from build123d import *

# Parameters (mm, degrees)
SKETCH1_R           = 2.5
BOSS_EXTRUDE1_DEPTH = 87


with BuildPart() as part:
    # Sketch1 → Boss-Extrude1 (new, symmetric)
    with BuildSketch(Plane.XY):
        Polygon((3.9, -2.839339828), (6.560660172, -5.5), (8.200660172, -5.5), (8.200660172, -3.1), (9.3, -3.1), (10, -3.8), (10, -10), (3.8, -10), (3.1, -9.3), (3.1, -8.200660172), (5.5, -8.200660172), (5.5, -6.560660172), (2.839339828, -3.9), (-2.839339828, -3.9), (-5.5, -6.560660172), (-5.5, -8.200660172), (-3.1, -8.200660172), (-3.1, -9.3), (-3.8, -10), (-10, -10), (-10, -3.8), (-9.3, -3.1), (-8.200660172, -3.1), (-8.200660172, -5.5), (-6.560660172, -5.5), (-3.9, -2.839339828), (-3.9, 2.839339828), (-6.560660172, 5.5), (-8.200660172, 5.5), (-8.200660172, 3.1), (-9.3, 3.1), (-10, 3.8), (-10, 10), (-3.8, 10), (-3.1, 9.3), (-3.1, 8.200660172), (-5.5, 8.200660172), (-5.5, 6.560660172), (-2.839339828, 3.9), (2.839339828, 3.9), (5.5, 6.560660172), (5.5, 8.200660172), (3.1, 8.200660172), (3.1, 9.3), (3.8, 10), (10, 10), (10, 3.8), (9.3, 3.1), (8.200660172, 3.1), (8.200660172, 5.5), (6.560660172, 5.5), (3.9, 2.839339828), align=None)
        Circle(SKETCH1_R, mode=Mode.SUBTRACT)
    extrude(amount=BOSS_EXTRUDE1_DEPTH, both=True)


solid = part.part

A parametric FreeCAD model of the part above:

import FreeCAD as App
import Part
import Sketcher
from FreeCAD import Vector

doc = App.newDocument("Part")
body = doc.addObject("PartDesign::Body", "Body")

sketch1 = body.newObject("Sketcher::SketchObject", "Sketch")
sketch1.AttachmentSupport = (doc.getObject("XY_Plane"), [""])
sketch1.MapMode = "FlatFace"
sketch1.addGeometry(Part.LineSegment(Vector(6.56066, -5.5, 0), Vector(3.9, -2.83934, 0)), False)
sketch1.addGeometry(Part.LineSegment(Vector(3.9, -2.83934, 0), Vector(3.9, 2.83934, 0)), False)
sketch1.addGeometry(Part.LineSegment(Vector(3.9, 2.83934, 0), Vector(6.56066, 5.5, 0)), False)
sketch1.addGeometry(Part.LineSegment(Vector(6.56066, 5.5, 0), Vector(8.20066, 5.5, 0)), False)
sketch1.addGeometry(Part.LineSegment(Vector(8.20066, 5.5, 0), Vector(8.20066, 3.1, 0)), False)
sketch1.addGeometry(Part.LineSegment(Vector(8.20066, 3.1, 0), Vector(9.3, 3.1, 0)), False)
sketch1.addGeometry(Part.LineSegment(Vector(9.3, 3.1, 0), Vector(10, 3.8, 0)), False)
sketch1.addGeometry(Part.LineSegment(Vector(10, 3.8, 0), Vector(10, 10, 0)), False)
sketch1.addGeometry(Part.LineSegment(Vector(10, 10, 0), Vector(3.8, 10, 0)), False)
sketch1.addGeometry(Part.LineSegment(Vector(3.8, 10, 0), Vector(3.1, 9.3, 0)), False)
sketch1.addGeometry(Part.LineSegment(Vector(3.1, 9.3, 0), Vector(3.1, 8.20066, 0)), False)
sketch1.addGeometry(Part.LineSegment(Vector(3.1, 8.20066, 0), Vector(5.5, 8.20066, 0)), False)
sketch1.addGeometry(Part.LineSegment(Vector(5.5, 8.20066, 0), Vector(5.5, 6.56066, 0)), False)
sketch1.addGeometry(Part.LineSegment(Vector(5.5, 6.56066, 0), Vector(2.83934, 3.9, 0)), False)
sketch1.addGeometry(Part.LineSegment(Vector(2.83934, 3.9, 0), Vector(-2.83934, 3.9, 0)), False)
sketch1.addGeometry(Part.LineSegment(Vector(-2.83934, 3.9, 0), Vector(-5.5, 6.56066, 0)), False)
sketch1.addGeometry(Part.LineSegment(Vector(-5.5, 6.56066, 0), Vector(-5.5, 8.20066, 0)), False)
sketch1.addGeometry(Part.LineSegment(Vector(-5.5, 8.20066, 0), Vector(-3.1, 8.20066, 0)), False)
sketch1.addGeometry(Part.LineSegment(Vector(-3.1, 8.20066, 0), Vector(-3.1, 9.3, 0)), False)
sketch1.addGeometry(Part.LineSegment(Vector(-3.1, 9.3, 0), Vector(-3.8, 10, 0)), False)
sketch1.addGeometry(Part.LineSegment(Vector(-3.8, 10, 0), Vector(-10, 10, 0)), False)
sketch1.addGeometry(Part.LineSegment(Vector(-10, 10, 0), Vector(-10, 3.8, 0)), False)
sketch1.addGeometry(Part.LineSegment(Vector(-10, 3.8, 0), Vector(-9.3, 3.1, 0)), False)
sketch1.addGeometry(Part.LineSegment(Vector(-9.3, 3.1, 0), Vector(-8.20066, 3.1, 0)), False)
sketch1.addGeometry(Part.LineSegment(Vector(-8.20066, 3.1, 0), Vector(-8.20066, 5.5, 0)), False)
sketch1.addGeometry(Part.LineSegment(Vector(-8.20066, 5.5, 0), Vector(-6.56066, 5.5, 0)), False)
sketch1.addGeometry(Part.LineSegment(Vector(-6.56066, 5.5, 0), Vector(-3.9, 2.83934, 0)), False)
sketch1.addGeometry(Part.LineSegment(Vector(-3.9, 2.83934, 0), Vector(-3.9, -2.83934, 0)), False)
sketch1.addGeometry(Part.LineSegment(Vector(-3.9, -2.83934, 0), Vector(-6.56066, -5.5, 0)), False)
sketch1.addGeometry(Part.LineSegment(Vector(-6.56066, -5.5, 0), Vector(-8.20066, -5.5, 0)), False)
sketch1.addGeometry(Part.LineSegment(Vector(-8.20066, -5.5, 0), Vector(-8.20066, -3.1, 0)), False)
sketch1.addGeometry(Part.LineSegment(Vector(-8.20066, -3.1, 0), Vector(-9.3, -3.1, 0)), False)
sketch1.addGeometry(Part.LineSegment(Vector(-9.3, -3.1, 0), Vector(-10, -3.8, 0)), False)
sketch1.addGeometry(Part.LineSegment(Vector(-10, -3.8, 0), Vector(-10, -10, 0)), False)
sketch1.addGeometry(Part.LineSegment(Vector(-10, -10, 0), Vector(-3.8, -10, 0)), False)
sketch1.addGeometry(Part.LineSegment(Vector(-3.8, -10, 0), Vector(-3.1, -9.3, 0)), False)
sketch1.addGeometry(Part.LineSegment(Vector(-3.1, -9.3, 0), Vector(-3.1, -8.20066, 0)), False)
sketch1.addGeometry(Part.LineSegment(Vector(-3.1, -8.20066, 0), Vector(-5.5, -8.20066, 0)), False)
sketch1.addGeometry(Part.LineSegment(Vector(-5.5, -8.20066, 0), Vector(-5.5, -6.56066, 0)), False)
sketch1.addGeometry(Part.LineSegment(Vector(-5.5, -6.56066, 0), Vector(-2.83934, -3.9, 0)), False)
sketch1.addGeometry(Part.LineSegment(Vector(-2.83934, -3.9, 0), Vector(2.83934, -3.9, 0)), False)
sketch1.addGeometry(Part.LineSegment(Vector(2.83934, -3.9, 0), Vector(5.5, -6.56066, 0)), False)
sketch1.addGeometry(Part.LineSegment(Vector(5.5, -6.56066, 0), Vector(5.5, -8.20066, 0)), False)
sketch1.addGeometry(Part.LineSegment(Vector(5.5, -8.20066, 0), Vector(3.1, -8.20066, 0)), False)
sketch1.addGeometry(Part.LineSegment(Vector(3.1, -8.20066, 0), Vector(3.1, -9.3, 0)), False)
sketch1.addGeometry(Part.LineSegment(Vector(3.1, -9.3, 0), Vector(3.8, -10, 0)), False)
sketch1.addGeometry(Part.LineSegment(Vector(3.8, -10, 0), Vector(10, -10, 0)), False)
sketch1.addGeometry(Part.LineSegment(Vector(10, -10, 0), Vector(10, -3.8, 0)), False)
sketch1.addGeometry(Part.LineSegment(Vector(10, -3.8, 0), Vector(9.3, -3.1, 0)), False)
sketch1.addGeometry(Part.LineSegment(Vector(9.3, -3.1, 0), Vector(8.20066, -3.1, 0)), False)
sketch1.addGeometry(Part.LineSegment(Vector(8.20066, -3.1, 0), Vector(8.20066, -5.5, 0)), False)
sketch1.addGeometry(Part.LineSegment(Vector(8.20066, -5.5, 0), Vector(6.56066, -5.5, 0)), False)
sketch1.addGeometry(Part.Circle(Vector(0, 0, 0), Vector(0, 0, 1), 2.5), False)
sketch1.addConstraint(Sketcher.Constraint("Coincident", 0, 2, 1, 1))
sketch1.addConstraint(Sketcher.Constraint("Coincident", 1, 2, 2, 1))
sketch1.addConstraint(Sketcher.Constraint("Coincident", 2, 2, 3, 1))
sketch1.addConstraint(Sketcher.Constraint("Coincident", 3, 2, 4, 1))
sketch1.addConstraint(Sketcher.Constraint("Coincident", 4, 2, 5, 1))
sketch1.addConstraint(Sketcher.Constraint("Coincident", 5, 2, 6, 1))
sketch1.addConstraint(Sketcher.Constraint("Coincident", 6, 2, 7, 1))
sketch1.addConstraint(Sketcher.Constraint("Coincident", 7, 2, 8, 1))
sketch1.addConstraint(Sketcher.Constraint("Coincident", 8, 2, 9, 1))
sketch1.addConstraint(Sketcher.Constraint("Coincident", 9, 2, 10, 1))
sketch1.addConstraint(Sketcher.Constraint("Coincident", 10, 2, 11, 1))
sketch1.addConstraint(Sketcher.Constraint("Coincident", 11, 2, 12, 1))
sketch1.addConstraint(Sketcher.Constraint("Coincident", 12, 2, 13, 1))
sketch1.addConstraint(Sketcher.Constraint("Coincident", 13, 2, 14, 1))
sketch1.addConstraint(Sketcher.Constraint("Coincident", 14, 2, 15, 1))
sketch1.addConstraint(Sketcher.Constraint("Coincident", 15, 2, 16, 1))
sketch1.addConstraint(Sketcher.Constraint("Coincident", 16, 2, 17, 1))
sketch1.addConstraint(Sketcher.Constraint("Coincident", 17, 2, 18, 1))
sketch1.addConstraint(Sketcher.Constraint("Coincident", 18, 2, 19, 1))
sketch1.addConstraint(Sketcher.Constraint("Coincident", 19, 2, 20, 1))
sketch1.addConstraint(Sketcher.Constraint("Coincident", 20, 2, 21, 1))
sketch1.addConstraint(Sketcher.Constraint("Coincident", 21, 2, 22, 1))
sketch1.addConstraint(Sketcher.Constraint("Coincident", 22, 2, 23, 1))
sketch1.addConstraint(Sketcher.Constraint("Coincident", 23, 2, 24, 1))
sketch1.addConstraint(Sketcher.Constraint("Coincident", 24, 2, 25, 1))
sketch1.addConstraint(Sketcher.Constraint("Coincident", 25, 2, 26, 1))
sketch1.addConstraint(Sketcher.Constraint("Coincident", 26, 2, 27, 1))
sketch1.addConstraint(Sketcher.Constraint("Coincident", 27, 2, 28, 1))
sketch1.addConstraint(Sketcher.Constraint("Coincident", 28, 2, 29, 1))
sketch1.addConstraint(Sketcher.Constraint("Coincident", 29, 2, 30, 1))
sketch1.addConstraint(Sketcher.Constraint("Coincident", 30, 2, 31, 1))
sketch1.addConstraint(Sketcher.Constraint("Coincident", 31, 2, 32, 1))
sketch1.addConstraint(Sketcher.Constraint("Coincident", 32, 2, 33, 1))
sketch1.addConstraint(Sketcher.Constraint("Coincident", 33, 2, 34, 1))
sketch1.addConstraint(Sketcher.Constraint("Coincident", 34, 2, 35, 1))
sketch1.addConstraint(Sketcher.Constraint("Coincident", 35, 2, 36, 1))
sketch1.addConstraint(Sketcher.Constraint("Coincident", 36, 2, 37, 1))
sketch1.addConstraint(Sketcher.Constraint("Coincident", 37, 2, 38, 1))
sketch1.addConstraint(Sketcher.Constraint("Coincident", 38, 2, 39, 1))
sketch1.addConstraint(Sketcher.Constraint("Coincident", 39, 2, 40, 1))
sketch1.addConstraint(Sketcher.Constraint("Coincident", 40, 2, 41, 1))
sketch1.addConstraint(Sketcher.Constraint("Coincident", 41, 2, 42, 1))
sketch1.addConstraint(Sketcher.Constraint("Coincident", 42, 2, 43, 1))
sketch1.addConstraint(Sketcher.Constraint("Coincident", 43, 2, 44, 1))
sketch1.addConstraint(Sketcher.Constraint("Coincident", 44, 2, 45, 1))
sketch1.addConstraint(Sketcher.Constraint("Coincident", 45, 2, 46, 1))
sketch1.addConstraint(Sketcher.Constraint("Coincident", 46, 2, 47, 1))
sketch1.addConstraint(Sketcher.Constraint("Coincident", 47, 2, 48, 1))
sketch1.addConstraint(Sketcher.Constraint("Coincident", 48, 2, 49, 1))
sketch1.addConstraint(Sketcher.Constraint("Coincident", 49, 2, 50, 1))
sketch1.addConstraint(Sketcher.Constraint("Coincident", 50, 2, 51, 1))
sketch1.addConstraint(Sketcher.Constraint("Coincident", 51, 2, 0, 1))
sketch1.addConstraint(Sketcher.Constraint("Vertical", 1))
sketch1.addConstraint(Sketcher.Constraint("Horizontal", 3))
sketch1.addConstraint(Sketcher.Constraint("Vertical", 4))
sketch1.addConstraint(Sketcher.Constraint("Horizontal", 5))
sketch1.addConstraint(Sketcher.Constraint("Vertical", 7))
sketch1.addConstraint(Sketcher.Constraint("Horizontal", 8))
sketch1.addConstraint(Sketcher.Constraint("Vertical", 10))
sketch1.addConstraint(Sketcher.Constraint("Horizontal", 11))
sketch1.addConstraint(Sketcher.Constraint("Vertical", 12))
sketch1.addConstraint(Sketcher.Constraint("Horizontal", 14))
sketch1.addConstraint(Sketcher.Constraint("Vertical", 16))
sketch1.addConstraint(Sketcher.Constraint("Horizontal", 17))
sketch1.addConstraint(Sketcher.Constraint("Vertical", 18))
sketch1.addConstraint(Sketcher.Constraint("Horizontal", 20))
sketch1.addConstraint(Sketcher.Constraint("Vertical", 21))
sketch1.addConstraint(Sketcher.Constraint("Horizontal", 23))
sketch1.addConstraint(Sketcher.Constraint("Vertical", 24))
sketch1.addConstraint(Sketcher.Constraint("Horizontal", 25))
sketch1.addConstraint(Sketcher.Constraint("Vertical", 27))
sketch1.addConstraint(Sketcher.Constraint("Horizontal", 29))
sketch1.addConstraint(Sketcher.Constraint("Vertical", 30))
sketch1.addConstraint(Sketcher.Constraint("Horizontal", 31))
sketch1.addConstraint(Sketcher.Constraint("Vertical", 33))
sketch1.addConstraint(Sketcher.Constraint("Horizontal", 34))
sketch1.addConstraint(Sketcher.Constraint("Vertical", 36))
sketch1.addConstraint(Sketcher.Constraint("Horizontal", 37))
sketch1.addConstraint(Sketcher.Constraint("Vertical", 38))
sketch1.addConstraint(Sketcher.Constraint("Horizontal", 40))
sketch1.addConstraint(Sketcher.Constraint("Vertical", 42))
sketch1.addConstraint(Sketcher.Constraint("Horizontal", 43))
sketch1.addConstraint(Sketcher.Constraint("Vertical", 44))
sketch1.addConstraint(Sketcher.Constraint("Horizontal", 46))
sketch1.addConstraint(Sketcher.Constraint("Vertical", 47))
sketch1.addConstraint(Sketcher.Constraint("Horizontal", 49))
sketch1.addConstraint(Sketcher.Constraint("Vertical", 50))
sketch1.addConstraint(Sketcher.Constraint("Horizontal", 51))
sketch1.addConstraint(Sketcher.Constraint("Coincident", 52, 3, -1, 1))
sketch1.addConstraint(Sketcher.Constraint("Symmetric", 0, 2, 26, 2, -1, 1))
sketch1.addConstraint(Sketcher.Constraint("Symmetric", 2, 2, 28, 2, -1, 1))
sketch1.addConstraint(Sketcher.Constraint("Symmetric", 4, 2, 30, 2, -1, 1))
sketch1.addConstraint(Sketcher.Constraint("Symmetric", 6, 2, 32, 2, -1, 1))
sketch1.addConstraint(Sketcher.Constraint("Symmetric", 8, 2, 34, 2, -1, 1))
sketch1.addConstraint(Sketcher.Constraint("Symmetric", 9, 2, 35, 2, -1, 1))
sketch1.addConstraint(Sketcher.Constraint("Symmetric", 11, 2, 37, 2, -1, 1))
sketch1.addConstraint(Sketcher.Constraint("Symmetric", 13, 2, 39, 2, -1, 1))
sketch1.addConstraint(Sketcher.Constraint("Symmetric", 15, 2, 41, 2, -1, 1))
sketch1.addConstraint(Sketcher.Constraint("Symmetric", 17, 2, 43, 2, -1, 1))
sketch1.addConstraint(Sketcher.Constraint("Symmetric", 19, 2, 45, 2, -1, 1))
sketch1.addConstraint(Sketcher.Constraint("Symmetric", 21, 2, 47, 2, -1, 1))
sketch1.addConstraint(Sketcher.Constraint("Symmetric", 22, 2, 48, 2, -1, 1))
sketch1.addConstraint(Sketcher.Constraint("Symmetric", 24, 2, 50, 2, -1, 1))
sketch1.addConstraint(Sketcher.Constraint("Symmetric", 12, 2, 15, 2, -2))
sketch1.addConstraint(Sketcher.Constraint("Symmetric", 10, 2, 17, 2, -2))
sketch1.addConstraint(Sketcher.Constraint("Symmetric", 8, 2, 19, 2, -2))
sketch1.addConstraint(Sketcher.Constraint("Symmetric", 6, 2, 21, 2, -2))
sketch1.addConstraint(Sketcher.Constraint("Symmetric", 5, 2, 22, 2, -2))
sketch1.addConstraint(Sketcher.Constraint("Symmetric", 3, 2, 24, 2, -2))
sketch1.addConstraint(Sketcher.Constraint("Perpendicular", 0, 2))
sketch1.addConstraint(Sketcher.Constraint("Parallel", 2, 6))
sketch1.addConstraint(Sketcher.Constraint("Parallel", 6, 9))
sketch1.addConstraint(Sketcher.Constraint("Parallel", 9, 13))
sketch1.addConstraint(Sketcher.Constraint("Perpendicular", 13, 15))
sketch1.addConstraint(Sketcher.Constraint("Parallel", 15, 19))
sketch1.addConstraint(Sketcher.Constraint("Parallel", 19, 22))
sketch1.addConstraint(Sketcher.Constraint("Parallel", 22, 26))
sketch1.addConstraint(Sketcher.Constraint("Perpendicular", 26, 28))
sketch1.addConstraint(Sketcher.Constraint("Parallel", 28, 32))
sketch1.addConstraint(Sketcher.Constraint("Parallel", 35, 39))
sketch1.addConstraint(Sketcher.Constraint("Perpendicular", 39, 41))
sketch1.addConstraint(Sketcher.Constraint("Parallel", 41, 45))
sketch1.addConstraint(Sketcher.Constraint("Horizontal", 1, 2, 26, 2))
sketch1.addConstraint(Sketcher.Constraint("Equal", 40, 1))
sketch1.addConstraint(Sketcher.Constraint("Equal", 43, 4))
sketch1.addConstraint(Sketcher.Constraint("Equal", 46, 7))
sketch1.addConstraint(Sketcher.Constraint("Equal", 49, 10))
sketch1.addConstraint(Sketcher.Constraint("Equal", 51, 12))
sketch1.addConstraint(Sketcher.Constraint("Equal", 6, 9))
sketch1.addConstraint(Sketcher.Constraint("Equal", 2, 13))
sketch1.addConstraint(Sketcher.Constraint("Diameter", 52, 5.0))
sketch1.addConstraint(Sketcher.Constraint("DistanceX", 8, 2, 8, 1, 6.2))
sketch1.addConstraint(Sketcher.Constraint("DistanceX", 11, 1, 11, 2, 2.4))
sketch1.addConstraint(Sketcher.Constraint("DistanceX", -1, 1, 6, 2, 10.0))
sketch1.addConstraint(Sketcher.Constraint("DistanceX", 3, 1, 3, 2, 1.64))
sketch1.addConstraint(Sketcher.Constraint("DistanceX", -1, 1, 0, 2, 3.9))
sketch1.addConstraint(Sketcher.Constraint("DistanceY", -1, 1, 2, 2, 5.5))
sketch1.addConstraint(Sketcher.Constraint("DistanceX", 5, 1, 5, 2, 1.09934))
pad1 = body.newObject("PartDesign::Pad", "Pad")
pad1.Profile = sketch1
pad1.Length = 174
pad1.Midplane = True

doc.recompute()
